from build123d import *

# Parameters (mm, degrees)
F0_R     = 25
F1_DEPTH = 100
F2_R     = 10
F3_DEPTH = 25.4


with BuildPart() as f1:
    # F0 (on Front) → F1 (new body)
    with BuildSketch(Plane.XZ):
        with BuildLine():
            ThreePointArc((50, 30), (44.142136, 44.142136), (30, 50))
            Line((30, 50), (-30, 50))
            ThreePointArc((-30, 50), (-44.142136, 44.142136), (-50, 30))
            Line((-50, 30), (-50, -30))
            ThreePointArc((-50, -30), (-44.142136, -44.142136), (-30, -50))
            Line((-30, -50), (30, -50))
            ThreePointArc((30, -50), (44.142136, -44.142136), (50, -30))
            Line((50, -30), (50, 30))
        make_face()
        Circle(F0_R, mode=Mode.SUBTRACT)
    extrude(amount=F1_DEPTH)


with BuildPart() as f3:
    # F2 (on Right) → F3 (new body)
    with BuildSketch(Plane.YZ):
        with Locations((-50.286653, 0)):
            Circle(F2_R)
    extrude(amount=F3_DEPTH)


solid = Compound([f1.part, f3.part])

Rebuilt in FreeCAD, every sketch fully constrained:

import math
import FreeCAD as App
import Part
import Sketcher

V = App.Vector
Q = App.Units.Quantity

doc = App.newDocument("Part")
body = doc.addObject("PartDesign::Body", "Body")

# Sketch on XZ plane
sketch1 = body.newObject("Sketcher::SketchObject", "Sketch")
sketch1.AttachmentSupport = (doc.getObject("XZ_Plane"), [""])
sketch1.MapMode = "FlatFace"
sketch1.addGeometry([
    Part.ArcOfCircle(Part.Circle(V(30.000001, 30.000001, 0), V(0, 0, 1), 19.999999), math.radians(-0.000004), math.radians(90.000004)),  # 0
    Part.LineSegment(V(30, 50, 0), V(-30, 50, 0)),  # 1
    Part.ArcOfCircle(Part.Circle(V(-30.000001, 30.000001, 0), V(0, 0, 1), 19.999999), math.radians(89.999996), math.radians(180.000004)),  # 2
    Part.LineSegment(V(-50, 30, 0), V(-50, -30, 0)),  # 3
    Part.ArcOfCircle(Part.Circle(V(-30.000001, -30.000001, 0), V(0, 0, 1), 19.999999), math.radians(179.999996), math.radians(270.000004)),  # 4
    Part.LineSegment(V(-30, -50, 0), V(30, -50, 0)),  # 5
    Part.ArcOfCircle(Part.Circle(V(30.000001, -30.000001, 0), V(0, 0, 1), 19.999999), math.radians(-90.000004), math.radians(0.000004)),  # 6
    Part.LineSegment(V(50, -30, 0), V(50, 30, 0)),  # 7
    Part.Circle(V(0, 0, 0), V(0, 0, 1), 25),  # 8
], False)
sketch1.addConstraint([
    Sketcher.Constraint("Tangent", 0, 2, 1, 1),
    Sketcher.Constraint("Tangent", 1, 2, 2, 1),
    Sketcher.Constraint("Tangent", 2, 2, 3, 1),
    Sketcher.Constraint("Tangent", 3, 2, 4, 1),
    Sketcher.Constraint("Tangent", 4, 2, 5, 1),
    Sketcher.Constraint("Tangent", 5, 2, 6, 1),
    Sketcher.Constraint("Tangent", 6, 2, 7, 1),
    Sketcher.Constraint("Tangent", 7, 2, 0, 1),
    Sketcher.Constraint("Horizontal", 1),
    Sketcher.Constraint("Vertical", 3),
    Sketcher.Constraint("Horizontal", 5),
    Sketcher.Constraint("Vertical", 7),
    Sketcher.Constraint("Coincident", 8, 3, -1, 1),
    Sketcher.Constraint("Equal", 0, 2),
    Sketcher.Constraint("Equal", 2, 4),
    Sketcher.Constraint("Equal", 4, 6),
    Sketcher.Constraint("Symmetric", 0, 3, 4, 3, -1, 1),
    Sketcher.Constraint("Equal", 5, 3),
    Sketcher.Constraint("Diameter", 8, Q("50 mm")),
    Sketcher.Constraint("Radius", 0, Q("19.999999 mm")),
    Sketcher.Constraint("DistanceX", 1, 2, 1, 1, Q("60 mm")),
])
pad1 = body.newObject("PartDesign::Pad", "Pad")
pad1.Profile = sketch1
pad1.Length = 100
body2 = doc.addObject("PartDesign::Body", "Body001")

# Sketch on YZ plane
sketch2 = body2.newObject("Sketcher::SketchObject", "Sketch001")
sketch2.AttachmentSupport = (doc.getObject("YZ_Plane001"), [""])
sketch2.MapMode = "FlatFace"
sketch2.addGeometry(Part.Circle(V(-50.286653, 0, 0), V(0, 0, 1), 10), False)
sketch2.addConstraint([
    Sketcher.Constraint("PointOnObject", 0, 3, -1),
    Sketcher.Constraint("Diameter", 0, Q("20 mm")),
    Sketcher.Constraint("DistanceX", 0, 3, -1, 1, Q("50.286653 mm")),
])
pad2 = body2.newObject("PartDesign::Pad", "Pad001")
pad2.Profile = sketch2
pad2.Length = 25.4

doc.recompute()
